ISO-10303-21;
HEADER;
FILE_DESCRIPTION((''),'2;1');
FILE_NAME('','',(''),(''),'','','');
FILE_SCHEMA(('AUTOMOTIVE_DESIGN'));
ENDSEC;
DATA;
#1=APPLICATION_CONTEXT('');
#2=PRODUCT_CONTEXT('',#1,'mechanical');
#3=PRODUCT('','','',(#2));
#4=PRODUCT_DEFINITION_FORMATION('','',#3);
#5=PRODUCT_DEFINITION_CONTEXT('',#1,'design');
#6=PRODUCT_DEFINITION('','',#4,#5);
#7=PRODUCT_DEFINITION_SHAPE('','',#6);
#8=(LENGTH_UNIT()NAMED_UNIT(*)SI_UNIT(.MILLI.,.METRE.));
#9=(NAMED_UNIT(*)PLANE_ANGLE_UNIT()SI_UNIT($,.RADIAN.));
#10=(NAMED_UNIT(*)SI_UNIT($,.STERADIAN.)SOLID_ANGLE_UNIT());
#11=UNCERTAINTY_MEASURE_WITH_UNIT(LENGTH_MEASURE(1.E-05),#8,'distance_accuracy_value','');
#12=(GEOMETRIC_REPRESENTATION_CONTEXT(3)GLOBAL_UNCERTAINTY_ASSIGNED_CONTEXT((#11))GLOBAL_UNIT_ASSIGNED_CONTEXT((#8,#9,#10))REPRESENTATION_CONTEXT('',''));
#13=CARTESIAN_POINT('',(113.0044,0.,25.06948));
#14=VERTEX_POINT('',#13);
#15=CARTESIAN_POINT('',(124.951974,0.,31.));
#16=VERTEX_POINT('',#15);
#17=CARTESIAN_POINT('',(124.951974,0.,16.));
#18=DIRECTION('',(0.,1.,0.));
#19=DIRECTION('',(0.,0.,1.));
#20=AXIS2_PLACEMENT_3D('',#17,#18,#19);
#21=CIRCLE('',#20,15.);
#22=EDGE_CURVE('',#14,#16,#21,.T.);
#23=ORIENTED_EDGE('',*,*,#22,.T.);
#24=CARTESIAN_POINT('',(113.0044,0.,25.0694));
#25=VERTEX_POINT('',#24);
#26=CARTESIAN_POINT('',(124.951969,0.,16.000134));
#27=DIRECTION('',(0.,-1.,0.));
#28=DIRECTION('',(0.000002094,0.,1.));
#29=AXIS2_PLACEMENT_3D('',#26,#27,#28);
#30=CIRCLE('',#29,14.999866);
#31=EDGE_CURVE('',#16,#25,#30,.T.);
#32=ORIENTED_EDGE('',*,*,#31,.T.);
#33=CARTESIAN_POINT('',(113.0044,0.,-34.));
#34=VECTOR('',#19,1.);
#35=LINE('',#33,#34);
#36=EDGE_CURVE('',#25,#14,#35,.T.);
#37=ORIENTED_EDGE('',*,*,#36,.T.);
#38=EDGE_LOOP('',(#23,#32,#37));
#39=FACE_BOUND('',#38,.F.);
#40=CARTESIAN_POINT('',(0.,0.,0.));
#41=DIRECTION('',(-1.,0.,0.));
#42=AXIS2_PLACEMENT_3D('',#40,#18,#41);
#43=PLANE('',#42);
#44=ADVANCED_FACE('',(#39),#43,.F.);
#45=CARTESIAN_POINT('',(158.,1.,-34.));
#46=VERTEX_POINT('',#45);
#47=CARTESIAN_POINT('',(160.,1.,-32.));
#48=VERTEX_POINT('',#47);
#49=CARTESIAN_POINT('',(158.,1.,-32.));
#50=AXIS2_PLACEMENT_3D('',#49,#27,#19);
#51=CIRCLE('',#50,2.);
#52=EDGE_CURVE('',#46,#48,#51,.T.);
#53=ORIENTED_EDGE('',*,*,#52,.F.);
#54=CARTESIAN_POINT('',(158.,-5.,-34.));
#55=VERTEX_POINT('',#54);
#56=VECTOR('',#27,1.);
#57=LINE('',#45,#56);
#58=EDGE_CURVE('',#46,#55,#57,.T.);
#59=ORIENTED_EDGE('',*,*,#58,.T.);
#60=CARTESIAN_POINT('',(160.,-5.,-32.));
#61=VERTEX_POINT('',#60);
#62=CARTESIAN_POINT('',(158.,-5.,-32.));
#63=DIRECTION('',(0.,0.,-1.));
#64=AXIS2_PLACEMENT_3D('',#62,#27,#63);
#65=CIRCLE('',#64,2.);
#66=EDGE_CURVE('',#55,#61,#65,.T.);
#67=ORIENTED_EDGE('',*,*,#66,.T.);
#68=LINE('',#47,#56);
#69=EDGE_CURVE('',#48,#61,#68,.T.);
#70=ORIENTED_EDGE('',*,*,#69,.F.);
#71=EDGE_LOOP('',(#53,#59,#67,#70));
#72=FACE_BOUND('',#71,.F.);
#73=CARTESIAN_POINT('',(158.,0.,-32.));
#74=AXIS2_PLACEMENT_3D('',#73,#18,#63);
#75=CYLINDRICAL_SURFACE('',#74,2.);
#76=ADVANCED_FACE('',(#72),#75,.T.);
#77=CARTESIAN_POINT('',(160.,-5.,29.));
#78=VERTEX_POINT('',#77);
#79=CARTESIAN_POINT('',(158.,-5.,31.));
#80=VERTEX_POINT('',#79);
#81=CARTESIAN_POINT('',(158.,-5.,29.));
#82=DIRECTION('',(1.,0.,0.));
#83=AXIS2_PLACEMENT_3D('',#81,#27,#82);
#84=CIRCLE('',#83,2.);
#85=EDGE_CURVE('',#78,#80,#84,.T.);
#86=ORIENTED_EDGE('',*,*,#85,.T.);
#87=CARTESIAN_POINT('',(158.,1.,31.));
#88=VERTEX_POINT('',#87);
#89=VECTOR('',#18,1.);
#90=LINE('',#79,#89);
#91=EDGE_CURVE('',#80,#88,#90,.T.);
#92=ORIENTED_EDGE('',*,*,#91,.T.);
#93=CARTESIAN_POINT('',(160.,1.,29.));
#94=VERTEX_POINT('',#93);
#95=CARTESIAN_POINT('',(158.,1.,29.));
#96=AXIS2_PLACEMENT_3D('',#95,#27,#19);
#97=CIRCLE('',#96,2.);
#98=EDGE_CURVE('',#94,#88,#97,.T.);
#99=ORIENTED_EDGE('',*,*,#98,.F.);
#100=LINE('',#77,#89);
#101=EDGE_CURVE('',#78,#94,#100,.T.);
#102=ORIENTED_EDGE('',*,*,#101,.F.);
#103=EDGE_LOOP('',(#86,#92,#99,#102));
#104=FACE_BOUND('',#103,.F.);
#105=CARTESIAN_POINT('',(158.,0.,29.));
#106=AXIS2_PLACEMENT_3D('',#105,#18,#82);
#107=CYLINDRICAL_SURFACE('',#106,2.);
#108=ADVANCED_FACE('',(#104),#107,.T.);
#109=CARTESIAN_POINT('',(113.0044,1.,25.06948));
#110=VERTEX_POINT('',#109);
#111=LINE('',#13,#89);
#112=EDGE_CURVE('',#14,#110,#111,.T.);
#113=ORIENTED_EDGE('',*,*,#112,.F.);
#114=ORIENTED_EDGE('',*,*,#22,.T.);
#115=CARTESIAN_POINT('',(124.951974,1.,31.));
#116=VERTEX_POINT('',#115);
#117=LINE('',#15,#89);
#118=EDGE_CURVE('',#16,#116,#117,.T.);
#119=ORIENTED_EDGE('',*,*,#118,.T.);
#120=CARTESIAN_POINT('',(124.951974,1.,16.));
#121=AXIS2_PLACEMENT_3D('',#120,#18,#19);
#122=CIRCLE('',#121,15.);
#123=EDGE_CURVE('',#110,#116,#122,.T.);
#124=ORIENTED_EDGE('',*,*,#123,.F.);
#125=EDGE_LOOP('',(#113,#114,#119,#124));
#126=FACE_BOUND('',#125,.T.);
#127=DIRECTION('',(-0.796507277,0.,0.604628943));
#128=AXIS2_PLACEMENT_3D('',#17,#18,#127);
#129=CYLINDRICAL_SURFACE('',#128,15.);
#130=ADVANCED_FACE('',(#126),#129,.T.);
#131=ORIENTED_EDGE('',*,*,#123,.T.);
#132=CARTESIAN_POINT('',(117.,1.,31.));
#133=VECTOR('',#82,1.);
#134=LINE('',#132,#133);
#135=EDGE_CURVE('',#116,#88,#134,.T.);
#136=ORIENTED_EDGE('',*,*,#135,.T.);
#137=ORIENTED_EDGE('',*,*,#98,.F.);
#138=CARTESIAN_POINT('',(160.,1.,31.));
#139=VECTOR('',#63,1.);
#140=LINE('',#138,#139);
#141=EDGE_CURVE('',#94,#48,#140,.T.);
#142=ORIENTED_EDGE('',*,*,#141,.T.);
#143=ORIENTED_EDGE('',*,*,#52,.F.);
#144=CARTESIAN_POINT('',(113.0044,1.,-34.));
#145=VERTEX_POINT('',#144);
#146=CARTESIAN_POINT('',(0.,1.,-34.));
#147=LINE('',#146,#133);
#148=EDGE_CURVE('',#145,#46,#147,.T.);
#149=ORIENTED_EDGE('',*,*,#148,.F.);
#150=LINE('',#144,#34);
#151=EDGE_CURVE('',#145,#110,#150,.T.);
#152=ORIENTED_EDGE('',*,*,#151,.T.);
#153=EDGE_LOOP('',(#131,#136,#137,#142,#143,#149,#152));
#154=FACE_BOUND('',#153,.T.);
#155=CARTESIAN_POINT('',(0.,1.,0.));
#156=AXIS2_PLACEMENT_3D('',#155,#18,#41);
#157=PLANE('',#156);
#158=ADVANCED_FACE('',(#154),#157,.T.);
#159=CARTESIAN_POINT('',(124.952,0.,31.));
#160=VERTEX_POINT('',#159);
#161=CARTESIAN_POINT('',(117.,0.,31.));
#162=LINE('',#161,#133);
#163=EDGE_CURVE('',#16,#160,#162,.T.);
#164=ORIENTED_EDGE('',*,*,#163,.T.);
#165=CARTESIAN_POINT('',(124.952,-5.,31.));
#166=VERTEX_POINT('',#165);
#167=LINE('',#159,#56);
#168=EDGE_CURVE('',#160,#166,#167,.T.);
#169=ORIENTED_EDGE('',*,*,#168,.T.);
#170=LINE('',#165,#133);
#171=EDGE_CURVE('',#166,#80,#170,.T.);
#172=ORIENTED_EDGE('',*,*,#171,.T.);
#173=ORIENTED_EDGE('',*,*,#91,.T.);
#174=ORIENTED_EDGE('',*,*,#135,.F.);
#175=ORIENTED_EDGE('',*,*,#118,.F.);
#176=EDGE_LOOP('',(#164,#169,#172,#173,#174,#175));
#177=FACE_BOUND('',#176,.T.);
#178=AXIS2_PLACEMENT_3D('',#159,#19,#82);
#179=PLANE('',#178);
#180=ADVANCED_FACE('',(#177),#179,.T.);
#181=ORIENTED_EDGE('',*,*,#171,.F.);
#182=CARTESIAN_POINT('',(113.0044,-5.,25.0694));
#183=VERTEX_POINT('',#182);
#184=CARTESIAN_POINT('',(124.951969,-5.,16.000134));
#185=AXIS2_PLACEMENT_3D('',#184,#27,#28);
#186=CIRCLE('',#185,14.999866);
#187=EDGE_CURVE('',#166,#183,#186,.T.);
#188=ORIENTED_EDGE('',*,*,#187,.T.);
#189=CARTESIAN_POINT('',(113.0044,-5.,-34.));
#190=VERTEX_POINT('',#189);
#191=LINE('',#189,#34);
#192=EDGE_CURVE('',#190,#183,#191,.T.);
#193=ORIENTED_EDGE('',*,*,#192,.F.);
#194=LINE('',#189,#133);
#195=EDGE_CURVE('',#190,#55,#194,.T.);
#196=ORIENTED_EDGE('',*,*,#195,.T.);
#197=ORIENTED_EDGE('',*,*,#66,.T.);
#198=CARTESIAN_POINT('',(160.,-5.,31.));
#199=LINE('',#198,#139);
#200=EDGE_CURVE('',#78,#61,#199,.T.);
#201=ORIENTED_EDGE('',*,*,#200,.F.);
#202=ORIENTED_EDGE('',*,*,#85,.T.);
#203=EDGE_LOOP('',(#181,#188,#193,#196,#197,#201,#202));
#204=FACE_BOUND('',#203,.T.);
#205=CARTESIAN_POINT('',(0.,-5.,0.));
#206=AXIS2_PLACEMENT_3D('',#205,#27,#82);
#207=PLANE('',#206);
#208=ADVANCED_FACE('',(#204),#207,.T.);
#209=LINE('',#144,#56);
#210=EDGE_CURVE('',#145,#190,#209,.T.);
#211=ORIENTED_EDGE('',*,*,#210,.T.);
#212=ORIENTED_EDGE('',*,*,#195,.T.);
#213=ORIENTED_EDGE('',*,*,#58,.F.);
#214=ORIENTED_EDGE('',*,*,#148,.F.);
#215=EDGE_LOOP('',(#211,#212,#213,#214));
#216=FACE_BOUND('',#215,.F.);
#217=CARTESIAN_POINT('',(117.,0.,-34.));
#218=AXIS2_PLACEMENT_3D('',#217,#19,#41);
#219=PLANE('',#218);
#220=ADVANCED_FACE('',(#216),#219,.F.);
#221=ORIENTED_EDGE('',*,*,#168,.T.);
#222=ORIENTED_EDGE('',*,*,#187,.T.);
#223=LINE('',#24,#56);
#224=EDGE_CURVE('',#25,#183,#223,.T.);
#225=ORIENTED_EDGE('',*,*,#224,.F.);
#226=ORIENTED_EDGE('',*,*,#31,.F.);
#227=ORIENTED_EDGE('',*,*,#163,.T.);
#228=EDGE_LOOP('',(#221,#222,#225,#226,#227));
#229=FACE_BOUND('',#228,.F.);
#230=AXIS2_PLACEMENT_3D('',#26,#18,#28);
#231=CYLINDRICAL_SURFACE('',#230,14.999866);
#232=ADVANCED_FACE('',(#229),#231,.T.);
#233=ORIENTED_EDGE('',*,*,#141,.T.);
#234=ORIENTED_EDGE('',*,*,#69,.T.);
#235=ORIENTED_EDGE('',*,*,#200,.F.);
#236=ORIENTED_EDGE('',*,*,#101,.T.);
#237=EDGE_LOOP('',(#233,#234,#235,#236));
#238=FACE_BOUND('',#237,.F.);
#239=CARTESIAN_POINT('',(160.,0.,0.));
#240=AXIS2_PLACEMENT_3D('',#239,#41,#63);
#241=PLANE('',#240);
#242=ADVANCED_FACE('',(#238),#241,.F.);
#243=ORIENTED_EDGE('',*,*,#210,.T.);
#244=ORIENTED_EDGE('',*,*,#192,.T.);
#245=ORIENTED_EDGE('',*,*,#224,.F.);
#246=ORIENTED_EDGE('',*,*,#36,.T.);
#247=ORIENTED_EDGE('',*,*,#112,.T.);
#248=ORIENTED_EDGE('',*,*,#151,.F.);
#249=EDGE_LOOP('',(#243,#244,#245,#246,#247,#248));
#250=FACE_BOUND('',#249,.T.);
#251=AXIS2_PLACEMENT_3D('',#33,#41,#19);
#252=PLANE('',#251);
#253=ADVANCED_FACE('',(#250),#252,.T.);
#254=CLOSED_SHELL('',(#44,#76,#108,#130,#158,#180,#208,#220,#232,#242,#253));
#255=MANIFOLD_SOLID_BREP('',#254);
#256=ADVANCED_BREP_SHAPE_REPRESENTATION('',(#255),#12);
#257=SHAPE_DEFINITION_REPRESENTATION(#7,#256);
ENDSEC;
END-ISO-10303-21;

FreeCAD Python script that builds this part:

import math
import FreeCAD as App
import Part
import Sketcher


def edges_at(feature, points):
    """Names of the edges that pass closest to the given points."""
    edges = feature.Shape.Edges
    near = lambda p: min(range(len(edges)), key=lambda i: edges[i].distToShape(Part.Vertex(*p))[0])
    return sorted({f"Edge{near(p) + 1}" for p in points})

doc = App.newDocument("Part")
body = doc.addObject("PartDesign::Body", "Body")

# Sketch on XZ plane
sketch1 = body.newObject("Sketcher::SketchObject", "Sketch")
sketch1.AttachmentSupport = (doc.getObject("XZ_Plane"), [""])
sketch1.MapMode = "FlatFace"
sketch1.addGeometry(Part.LineSegment(App.Vector(0, -34, 0), App.Vector(0, 0, 0)), False)
sketch1.addGeometry(Part.LineSegment(App.Vector(0, 0, 0), App.Vector(62, 0, 0)), False)
sketch1.addGeometry(Part.ArcOfCircle(Part.Circle(App.Vector(62, 63, 0), App.Vector(0, 0, 1), 63), math.radians(-90), math.radians(-31)), False)
sketch1.addGeometry(Part.LineSegment(App.Vector(117, 31, 0), App.Vector(160, 31, 0)), False)
sketch1.addGeometry(Part.LineSegment(App.Vector(160, 31, 0), App.Vector(160, -34, 0)), False)
sketch1.addGeometry(Part.LineSegment(App.Vector(160, -34, 0), App.Vector(0, -34, 0)), False)
sketch1.addConstraint(Sketcher.Constraint("Coincident", 0, 2, 1, 1))
sketch1.addConstraint(Sketcher.Constraint("Tangent", 1, 2, 2, 1))
sketch1.addConstraint(Sketcher.Constraint("Coincident", 2, 2, 3, 1))
sketch1.addConstraint(Sketcher.Constraint("Coincident", 3, 2, 4, 1))
sketch1.addConstraint(Sketcher.Constraint("Coincident", 4, 2, 5, 1))
sketch1.addConstraint(Sketcher.Constraint("Coincident", 5, 2, 0, 1))
sketch1.addConstraint(Sketcher.Constraint("Vertical", 0))
sketch1.addConstraint(Sketcher.Constraint("Horizontal", 1))
sketch1.addConstraint(Sketcher.Constraint("Horizontal", 3))
sketch1.addConstraint(Sketcher.Constraint("Vertical", 4))
sketch1.addConstraint(Sketcher.Constraint("Horizontal", 5))
sketch1.addConstraint(Sketcher.Constraint("Coincident", 0, 2, -1, 1))
sketch1.addConstraint(Sketcher.Constraint("DistanceX", 3, 1, 3, 2, 43.0))
sketch1.addConstraint(Sketcher.Constraint("DistanceX", 5, 2, 5, 1, 160.0))
sketch1.addConstraint(Sketcher.Constraint("DistanceY", 0, 1, 0, 2, 34.0))
sketch1.addConstraint(Sketcher.Constraint("DistanceY", 4, 2, 4, 1, 65.0))
sketch1.addConstraint(Sketcher.Constraint("DistanceX", 1, 1, 1, 2, 62.5))
pad1 = body.newObject("PartDesign::Pad", "Pad")
pad1.Profile = sketch1
pad1.Length = 1
pad1.Reversed = True
doc.recompute()

fillet = body.newObject("PartDesign::Fillet", "Fillet")
fillet.Base = (pad1, edges_at(pad1, [
    (160, 0.5, 31),
    (160, 0.5, -34),
    (0, 0.5, 0),
    (0, 0.5, -34),
]))
fillet.Radius = 2
doc.recompute()

fillet2 = body.newObject("PartDesign::Fillet", "Fillet001")
fillet2.Base = (fillet, edges_at(fillet, [(117, 0.5, 31)]))
fillet2.Radius = 15

# Sketch on XZ plane
sketch2 = body.newObject("Sketcher::SketchObject", "Sketch001")
sketch2.AttachmentSupport = (doc.getObject("XZ_Plane"), [""])
sketch2.MapMode = "FlatFace"
sketch2.AttachmentOffset = App.Placement(App.Vector(0, 0, -1), App.Rotation())
sketch2.addGeometry(Part.Circle(App.Vector(146, 24, 0), App.Vector(0, 0, 1), 3.5), False)
sketch2.addGeometry(Part.Circle(App.Vector(130, 24, 0), App.Vector(0, 0, 1), 3.5), False)
sketch2.addGeometry(Part.Circle(App.Vector(130, -8, 0), App.Vector(0, 0, 1), 3.5), False)
sketch2.addGeometry(Part.Circle(App.Vector(146, -8, 0), App.Vector(0, 0, 1), 3.5), False)
sketch2.addConstraint(Sketcher.Constraint("Equal", 0, 1))
sketch2.addConstraint(Sketcher.Constraint("Equal", 1, 2))
sketch2.addConstraint(Sketcher.Constraint("Equal", 2, 3))
sketch2.addConstraint(Sketcher.Constraint("Horizontal", 0, 3, 1, 3))
sketch2.addConstraint(Sketcher.Constraint("Horizontal", 2, 3, 3, 3))
sketch2.addConstraint(Sketcher.Constraint("Vertical", 1, 3, 2, 3))
sketch2.addConstraint(Sketcher.Constraint("Vertical", 0, 3, 3, 3))
sketch2.addConstraint(Sketcher.Constraint("Diameter", 0, 7.0))
sketch2.addConstraint(Sketcher.Constraint("DistanceX", 1, 3, 0, 3, 16.0))
sketch2.addConstraint(Sketcher.Constraint("DistanceY", 2, 3, 1, 3, 32.0))
sketch2.addConstraint(Sketcher.Constraint("DistanceX", -1, 1, 0, 3, 146.0))
sketch2.addConstraint(Sketcher.Constraint("DistanceY", -1, 1, 0, 3, 24.0))
pad2 = body.newObject("PartDesign::Pad", "Pad001")
pad2.Profile = sketch2
pad2.Length = 1
pad2.Reversed = True

# Sketch on XZ plane
sketch3 = body.newObject("Sketcher::SketchObject", "Sketch002")
sketch3.AttachmentSupport = (doc.getObject("XZ_Plane"), [""])
sketch3.MapMode = "FlatFace"
sketch3.AttachmentOffset = App.Placement(App.Vector(0, 0, -2), App.Rotation())
sketch3.addGeometry(Part.Circle(App.Vector(130, -8, 0), App.Vector(0, 0, 1), 2.2), False)
sketch3.addGeometry(Part.Circle(App.Vector(146, -8, 0), App.Vector(0, 0, 1), 2.2), False)
sketch3.addGeometry(Part.Circle(App.Vector(130, 24, 0), App.Vector(0, 0, 1), 2.2), False)
sketch3.addGeometry(Part.Circle(App.Vector(146, 24, 0), App.Vector(0, 0, 1), 2.2), False)
sketch3.addConstraint(Sketcher.Constraint("Equal", 0, 1))
sketch3.addConstraint(Sketcher.Constraint("Equal", 1, 2))
sketch3.addConstraint(Sketcher.Constraint("Equal", 2, 3))
sketch3.addConstraint(Sketcher.Constraint("Horizontal", 0, 3, 1, 3))
sketch3.addConstraint(Sketcher.Constraint("Horizontal", 2, 3, 3, 3))
sketch3.addConstraint(Sketcher.Constraint("Vertical", 0, 3, 2, 3))
sketch3.addConstraint(Sketcher.Constraint("Vertical", 1, 3, 3, 3))
sketch3.addConstraint(Sketcher.Constraint("Diameter", 0, 4.5))
sketch3.addConstraint(Sketcher.Constraint("DistanceX", -1, 1, 0, 3, 130.0))
sketch3.addConstraint(Sketcher.Constraint("DistanceY", 0, 3, -1, 1, 8.0))
sketch3.addConstraint(Sketcher.Constraint("DistanceX", -1, 1, 1, 3, 146.0))
sketch3.addConstraint(Sketcher.Constraint("DistanceY", -1, 1, 2, 3, 24.0))
pad3 = body.newObject("PartDesign::Pad", "Pad002")
pad3.Profile = sketch3
pad3.Length = 2.5
pad3.Reversed = True

# Sketch on XZ plane
sketch4 = body.newObject("Sketcher::SketchObject", "Sketch003")
sketch4.AttachmentSupport = (doc.getObject("XZ_Plane"), [""])
sketch4.MapMode = "FlatFace"
sketch4.AttachmentOffset = App.Placement(App.Vector(0, 0, -4.5), App.Rotation())
sketch4.addGeometry(Part.LineSegment(App.Vector(129.3, -6.8, 0), App.Vector(130.7, -6.8, 0)), False)
sketch4.addGeometry(Part.LineSegment(App.Vector(130.7, -6.8, 0), App.Vector(131.4, -8, 0)), False)
sketch4.addGeometry(Part.LineSegment(App.Vector(131.4, -8, 0), App.Vector(130.7, -9.2, 0)), False)
sketch4.addGeometry(Part.LineSegment(App.Vector(130.7, -9.2, 0), App.Vector(129.3, -9.2, 0)), False)
sketch4.addGeometry(Part.LineSegment(App.Vector(129.3, -9.2, 0), App.Vector(128.6, -8, 0)), False)
sketch4.addGeometry(Part.LineSegment(App.Vector(128.6, -8, 0), App.Vector(129.3, -6.8, 0)), False)
sketch4.addGeometry(Part.LineSegment(App.Vector(145.3, -6.8, 0), App.Vector(146.7, -6.8, 0)), False)
sketch4.addGeometry(Part.LineSegment(App.Vector(146.7, -6.8, 0), App.Vector(147.4, -8, 0)), False)
sketch4.addGeometry(Part.LineSegment(App.Vector(147.4, -8, 0), App.Vector(146.7, -9.2, 0)), False)
sketch4.addGeometry(Part.LineSegment(App.Vector(146.7, -9.2, 0), App.Vector(145.3, -9.2, 0)), False)
sketch4.addGeometry(Part.LineSegment(App.Vector(145.3, -9.2, 0), App.Vector(144.6, -8, 0)), False)
sketch4.addGeometry(Part.LineSegment(App.Vector(144.6, -8, 0), App.Vector(145.3, -6.8, 0)), False)
sketch4.addGeometry(Part.LineSegment(App.Vector(130.7, 22.8, 0), App.Vector(129.3, 22.8, 0)), False)
sketch4.addGeometry(Part.LineSegment(App.Vector(129.3, 22.8, 0), App.Vector(128.6, 24, 0)), False)
sketch4.addGeometry(Part.LineSegment(App.Vector(128.6, 24, 0), App.Vector(129.3, 25.2, 0)), False)
sketch4.addGeometry(Part.LineSegment(App.Vector(129.3, 25.2, 0), App.Vector(130.7, 25.2, 0)), False)
sketch4.addGeometry(Part.LineSegment(App.Vector(130.7, 25.2, 0), App.Vector(131.4, 24, 0)), False)
sketch4.addGeometry(Part.LineSegment(App.Vector(131.4, 24, 0), App.Vector(130.7, 22.8, 0)), False)
sketch4.addGeometry(Part.LineSegment(App.Vector(147.4, 24, 0), App.Vector(146.7, 22.8, 0)), False)
sketch4.addGeometry(Part.LineSegment(App.Vector(146.7, 22.8, 0), App.Vector(145.3, 22.8, 0)), False)
sketch4.addGeometry(Part.LineSegment(App.Vector(145.3, 22.8, 0), App.Vector(144.6, 24, 0)), False)
sketch4.addGeometry(Part.LineSegment(App.Vector(144.6, 24, 0), App.Vector(145.3, 25.2, 0)), False)
sketch4.addGeometry(Part.LineSegment(App.Vector(145.3, 25.2, 0), App.Vector(146.7, 25.2, 0)), False)
sketch4.addGeometry(Part.LineSegment(App.Vector(146.7, 25.2, 0), App.Vector(147.4, 24, 0)), False)
sketch4.addConstraint(Sketcher.Constraint("Coincident", 0, 2, 1, 1))
sketch4.addConstraint(Sketcher.Constraint("Coincident", 1, 2, 2, 1))
sketch4.addConstraint(Sketcher.Constraint("Coincident", 2, 2, 3, 1))
sketch4.addConstraint(Sketcher.Constraint("Coincident", 3, 2, 4, 1))
sketch4.addConstraint(Sketcher.Constraint("Coincident", 4, 2, 5, 1))
sketch4.addConstraint(Sketcher.Constraint("Coincident", 5, 2, 0, 1))
sketch4.addConstraint(Sketcher.Constraint("Coincident", 6, 2, 7, 1))
sketch4.addConstraint(Sketcher.Constraint("Coincident", 7, 2, 8, 1))
sketch4.addConstraint(Sketcher.Constraint("Coincident", 8, 2, 9, 1))
sketch4.addConstraint(Sketcher.Constraint("Coincident", 9, 2, 10, 1))
sketch4.addConstraint(Sketcher.Constraint("Coincident", 10, 2, 11, 1))
sketch4.addConstraint(Sketcher.Constraint("Coincident", 11, 2, 6, 1))
sketch4.addConstraint(Sketcher.Constraint("Coincident", 12, 2, 13, 1))
sketch4.addConstraint(Sketcher.Constraint("Coincident", 13, 2, 14, 1))
sketch4.addConstraint(Sketcher.Constraint("Coincident", 14, 2, 15, 1))
sketch4.addConstraint(Sketcher.Constraint("Coincident", 15, 2, 16, 1))
sketch4.addConstraint(Sketcher.Constraint("Coincident", 16, 2, 17, 1))
sketch4.addConstraint(Sketcher.Constraint("Coincident", 17, 2, 12, 1))
sketch4.addConstraint(Sketcher.Constraint("Coincident", 18, 2, 19, 1))
sketch4.addConstraint(Sketcher.Constraint("Coincident", 19, 2, 20, 1))
sketch4.addConstraint(Sketcher.Constraint("Coincident", 20, 2, 21, 1))
sketch4.addConstraint(Sketcher.Constraint("Coincident", 21, 2, 22, 1))
sketch4.addConstraint(Sketcher.Constraint("Coincident", 22, 2, 23, 1))
sketch4.addConstraint(Sketcher.Constraint("Coincident", 23, 2, 18, 1))
sketch4.addConstraint(Sketcher.Constraint("Parallel", 0, 3))
sketch4.addConstraint(Sketcher.Constraint("Parallel", 1, 4))
sketch4.addConstraint(Sketcher.Constraint("Parallel", 2, 5))
sketch4.addConstraint(Sketcher.Constraint("Parallel", 6, 9))
sketch4.addConstraint(Sketcher.Constraint("Parallel", 7, 10))
sketch4.addConstraint(Sketcher.Constraint("Parallel", 8, 11))
sketch4.addConstraint(Sketcher.Constraint("Parallel", 9, 12))
sketch4.addConstraint(Sketcher.Constraint("Parallel", 10, 13))
sketch4.addConstraint(Sketcher.Constraint("Parallel", 11, 14))
sketch4.addConstraint(Sketcher.Constraint("Parallel", 12, 15))
sketch4.addConstraint(Sketcher.Constraint("Parallel", 13, 16))
sketch4.addConstraint(Sketcher.Constraint("Parallel", 14, 17))
sketch4.addConstraint(Sketcher.Constraint("Parallel", 5, 18))
sketch4.addConstraint(Sketcher.Constraint("Parallel", 3, 19))
sketch4.addConstraint(Sketcher.Constraint("Parallel", 4, 20))
sketch4.addConstraint(Sketcher.Constraint("Parallel", 18, 21))
sketch4.addConstraint(Sketcher.Constraint("Parallel", 19, 22))
sketch4.addConstraint(Sketcher.Constraint("Parallel", 20, 23))
sketch4.addConstraint(Sketcher.Constraint("Horizontal", 5, 2, 6, 2))
sketch4.addConstraint(Sketcher.Constraint("Horizontal", 4, 2, 7, 2))
sketch4.addConstraint(Sketcher.Constraint("Horizontal", 3, 2, 8, 2))
sketch4.addConstraint(Sketcher.Constraint("Horizontal", 2, 2, 9, 2))
sketch4.addConstraint(Sketcher.Constraint("Horizontal", 1, 2, 10, 2))
sketch4.addConstraint(Sketcher.Constraint("Horizontal", 12, 2, 18, 2))
sketch4.addConstraint(Sketcher.Constraint("Horizontal", 16, 2, 20, 2))
sketch4.addConstraint(Sketcher.Constraint("Horizontal", 15, 2, 21, 2))
sketch4.addConstraint(Sketcher.Constraint("Horizontal", 13, 2, 23, 2))
sketch4.addConstraint(Sketcher.Constraint("Vertical", 5, 2, 12, 2))
sketch4.addConstraint(Sketcher.Constraint("Vertical", 4, 2, 13, 2))
sketch4.addConstraint(Sketcher.Constraint("Vertical", 3, 2, 14, 2))
sketch4.addConstraint(Sketcher.Constraint("Vertical", 2, 2, 15, 2))
sketch4.addConstraint(Sketcher.Constraint("Vertical", 1, 2, 16, 2))
sketch4.addConstraint(Sketcher.Constraint("Vertical", 6, 2, 18, 2))
sketch4.addConstraint(Sketcher.Constraint("Vertical", 11, 2, 19, 2))
sketch4.addConstraint(Sketcher.Constraint("Vertical", 10, 2, 20, 2))
sketch4.addConstraint(Sketcher.Constraint("Vertical", 9, 2, 21, 2))
sketch4.addConstraint(Sketcher.Constraint("Equal", 0, 1))
sketch4.addConstraint(Sketcher.Constraint("Equal", 1, 2))
sketch4.addConstraint(Sketcher.Constraint("Equal", 2, 3))
sketch4.addConstraint(Sketcher.Constraint("Equal", 5, 6))
sketch4.addConstraint(Sketcher.Constraint("DistanceX", 2, 2, 6, 2, 16.0))
sketch4.addConstraint(Sketcher.Constraint("DistanceY", 1, 2, 13, 2, 32.0))
sketch4.addConstraint(Sketcher.Constraint("DistanceX", 2, 2, 0, 2, 0.004))
sketch4.addConstraint(Sketcher.Constraint("DistanceX", 3, 2, 1, 2, 2.128))
sketch4.addConstraint(Sketcher.Constraint("DistanceY", 3, 2, 1, 2, 1.224))
sketch4.addConstraint(Sketcher.Constraint("DistanceY", 2, 2, 4, 2, 1.231))
sketch4.addConstraint(Sketcher.Constraint("DistanceX", -1, 1, 0, 2, 130.7107))
sketch4.addConstraint(Sketcher.Constraint("DistanceY", 0, 2, -1, 1, 6.7738))
pocket1 = body.newObject("PartDesign::Pocket", "Pocket")
pocket1.Profile = sketch4
pocket1.Length = 1.5
pocket1.Reversed = True

# Sketch on XZ plane
sketch5 = body.newObject("Sketcher::SketchObject", "Sketch004")
sketch5.AttachmentSupport = (doc.getObject("XZ_Plane"), [""])
sketch5.MapMode = "FlatFace"
sketch5.AttachmentOffset = App.Placement(App.Vector(0, 0, -1), App.Rotation())
sketch5.addGeometry(Part.Circle(App.Vector(6, -7.5, 0), App.Vector(0, 0, 1), 2.2), False)
sketch5.addGeometry(Part.Circle(App.Vector(6, -26.5, 0), App.Vector(0, 0, 1), 2.2), False)
sketch5.addConstraint(Sketcher.Constraint("Equal", 0, 1))
sketch5.addConstraint(Sketcher.Constraint("Vertical", 0, 3, 1, 3))
sketch5.addConstraint(Sketcher.Constraint("Diameter", 0, 4.5))
sketch5.addConstraint(Sketcher.Constraint("DistanceX", -1, 1, 0, 3, 6.0))
sketch5.addConstraint(Sketcher.Constraint("DistanceY", 0, 3, -1, 1, 7.5))
sketch5.addConstraint(Sketcher.Constraint("DistanceY", 1, 3, 0, 3, 19.0))
pocket2 = body.newObject("PartDesign::Pocket", "Pocket001")
pocket2.Profile = sketch5
pocket2.Length = 0.1
pocket2.Reversed = True

# Sketch on XZ plane
sketch6 = body.newObject("Sketcher::SketchObject", "Sketch005")
sketch6.AttachmentSupport = (doc.getObject("XZ_Plane"), [""])
sketch6.MapMode = "FlatFace"
sketch6.AttachmentOffset = App.Placement(App.Vector(0, 0, -0.9), App.Rotation())
sketch6.addGeometry(Part.LineSegment(App.Vector(6.2, -7.8, 0), App.Vector(6.2, -9, 0)), False)
sketch6.addGeometry(Part.LineSegment(App.Vector(6.2, -9, 0), App.Vector(5.8, -9, 0)), False)
sketch6.addGeometry(Part.LineSegment(App.Vector(5.8, -9, 0), App.Vector(5.8, -7.8, 0)), False)
sketch6.addGeometry(Part.LineSegment(App.Vector(5.8, -7.8, 0), App.Vector(4.5, -7.8, 0)), False)
sketch6.addGeometry(Part.LineSegment(App.Vector(4.5, -7.8, 0), App.Vector(4.5, -7.2, 0)), False)
sketch6.addGeometry(Part.LineSegment(App.Vector(4.5, -7.2, 0), App.Vector(5.8, -7.2, 0)), False)
sketch6.addGeometry(Part.LineSegment(App.Vector(5.8, -7.2, 0), App.Vector(5.8, -6, 0)), False)
sketch6.addGeometry(Part.LineSegment(App.Vector(5.8, -6, 0), App.Vector(6.2, -6, 0)), False)
sketch6.addGeometry(Part.LineSegment(App.Vector(6.2, -6, 0), App.Vector(6.2, -7.2, 0)), False)
sketch6.addGeometry(Part.LineSegment(App.Vector(6.2, -7.2, 0), App.Vector(7.5, -7.2, 0)), False)
sketch6.addGeometry(Part.LineSegment(App.Vector(7.5, -7.2, 0), App.Vector(7.5, -7.8, 0)), False)
sketch6.addGeometry(Part.LineSegment(App.Vector(7.5, -7.8, 0), App.Vector(6.2, -7.8, 0)), False)
sketch6.addGeometry(Part.LineSegment(App.Vector(6.2, -28, 0), App.Vector(5.8, -28, 0)), False)
sketch6.addGeometry(Part.LineSegment(App.Vector(5.8, -28, 0), App.Vector(5.8, -26.8, 0)), False)
sketch6.addGeometry(Part.LineSegment(App.Vector(5.8, -26.8, 0), App.Vector(4.5, -26.8, 0)), False)
sketch6.addGeometry(Part.LineSegment(App.Vector(4.5, -26.8, 0), App.Vector(4.5, -26.2, 0)), False)
sketch6.addGeometry(Part.LineSegment(App.Vector(4.5, -26.2, 0), App.Vector(5.8, -26.2, 0)), False)
sketch6.addGeometry(Part.LineSegment(App.Vector(5.8, -26.2, 0), App.Vector(5.8, -25, 0)), False)
sketch6.addGeometry(Part.LineSegment(App.Vector(5.8, -25, 0), App.Vector(6.2, -25, 0)), False)
sketch6.addGeometry(Part.LineSegment(App.Vector(6.2, -25, 0), App.Vector(6.2, -26.2, 0)), False)
sketch6.addGeometry(Part.LineSegment(App.Vector(6.2, -26.2, 0), App.Vector(7.5, -26.2, 0)), False)
sketch6.addGeometry(Part.LineSegment(App.Vector(7.5, -26.2, 0), App.Vector(7.5, -26.8, 0)), False)
sketch6.addGeometry(Part.LineSegment(App.Vector(7.5, -26.8, 0), App.Vector(6.2, -26.8, 0)), False)
sketch6.addGeometry(Part.LineSegment(App.Vector(6.2, -26.8, 0), App.Vector(6.2, -28, 0)), False)
sketch6.addConstraint(Sketcher.Constraint("Coincident", 0, 2, 1, 1))
sketch6.addConstraint(Sketcher.Constraint("Coincident", 1, 2, 2, 1))
sketch6.addConstraint(Sketcher.Constraint("Coincident", 2, 2, 3, 1))
sketch6.addConstraint(Sketcher.Constraint("Coincident", 3, 2, 4, 1))
sketch6.addConstraint(Sketcher.Constraint("Coincident", 4, 2, 5, 1))
sketch6.addConstraint(Sketcher.Constraint("Coincident", 5, 2, 6, 1))
sketch6.addConstraint(Sketcher.Constraint("Coincident", 6, 2, 7, 1))
sketch6.addConstraint(Sketcher.Constraint("Coincident", 7, 2, 8, 1))
sketch6.addConstraint(Sketcher.Constraint("Coincident", 8, 2, 9, 1))
sketch6.addConstraint(Sketcher.Constraint("Coincident", 9, 2, 10, 1))
sketch6.addConstraint(Sketcher.Constraint("Coincident", 10, 2, 11, 1))
sketch6.addConstraint(Sketcher.Constraint("Coincident", 11, 2, 0, 1))
sketch6.addConstraint(Sketcher.Constraint("Coincident", 12, 2, 13, 1))
sketch6.addConstraint(Sketcher.Constraint("Coincident", 13, 2, 14, 1))
sketch6.addConstraint(Sketcher.Constraint("Coincident", 14, 2, 15, 1))
sketch6.addConstraint(Sketcher.Constraint("Coincident", 15, 2, 16, 1))
sketch6.addConstraint(Sketcher.Constraint("Coincident", 16, 2, 17, 1))
sketch6.addConstraint(Sketcher.Constraint("Coincident", 17, 2, 18, 1))
sketch6.addConstraint(Sketcher.Constraint("Coincident", 18, 2, 19, 1))
sketch6.addConstraint(Sketcher.Constraint("Coincident", 19, 2, 20, 1))
sketch6.addConstraint(Sketcher.Constraint("Coincident", 20, 2, 21, 1))
sketch6.addConstraint(Sketcher.Constraint("Coincident", 21, 2, 22, 1))
sketch6.addConstraint(Sketcher.Constraint("Coincident", 22, 2, 23, 1))
sketch6.addConstraint(Sketcher.Constraint("Coincident", 23, 2, 12, 1))
sketch6.addConstraint(Sketcher.Constraint("Vertical", 0))
sketch6.addConstraint(Sketcher.Constraint("Horizontal", 1))
sketch6.addConstraint(Sketcher.Constraint("Vertical", 2))
sketch6.addConstraint(Sketcher.Constraint("Horizontal", 3))
sketch6.addConstraint(Sketcher.Constraint("Vertical", 4))
sketch6.addConstraint(Sketcher.Constraint("Horizontal", 5))
sketch6.addConstraint(Sketcher.Constraint("Vertical", 6))
sketch6.addConstraint(Sketcher.Constraint("Horizontal", 7))
sketch6.addConstraint(Sketcher.Constraint("Vertical", 8))
sketch6.addConstraint(Sketcher.Constraint("Horizontal", 9))
sketch6.addConstraint(Sketcher.Constraint("Vertical", 10))
sketch6.addConstraint(Sketcher.Constraint("Horizontal", 11))
sketch6.addConstraint(Sketcher.Constraint("Horizontal", 12))
sketch6.addConstraint(Sketcher.Constraint("Vertical", 13))
sketch6.addConstraint(Sketcher.Constraint("Horizontal", 14))
sketch6.addConstraint(Sketcher.Constraint("Vertical", 15))
sketch6.addConstraint(Sketcher.Constraint("Horizontal", 16))
sketch6.addConstraint(Sketcher.Constraint("Vertical", 17))
sketch6.addConstraint(Sketcher.Constraint("Horizontal", 18))
sketch6.addConstraint(Sketcher.Constraint("Vertical", 19))
sketch6.addConstraint(Sketcher.Constraint("Horizontal", 20))
sketch6.addConstraint(Sketcher.Constraint("Vertical", 21))
sketch6.addConstraint(Sketcher.Constraint("Horizontal", 22))
sketch6.addConstraint(Sketcher.Constraint("Vertical", 23))
sketch6.addConstraint(Sketcher.Constraint("Horizontal", 5, 2, 8, 2))
sketch6.addConstraint(Sketcher.Constraint("Horizontal", 3, 2, 10, 2))
sketch6.addConstraint(Sketcher.Constraint("Horizontal", 16, 2, 19, 2))
sketch6.addConstraint(Sketcher.Constraint("Horizontal", 14, 2, 21, 2))
sketch6.addConstraint(Sketcher.Constraint("Vertical", 2, 2, 5, 2))
sketch6.addConstraint(Sketcher.Constraint("Vertical", 0, 2, 7, 2))
sketch6.addConstraint(Sketcher.Constraint("Vertical", 6, 2, 12, 2))
sketch6.addConstraint(Sketcher.Constraint("Vertical", 4, 2, 14, 2))
sketch6.addConstraint(Sketcher.Constraint("Vertical", 13, 2, 16, 2))
sketch6.addConstraint(Sketcher.Constraint("Vertical", 11, 2, 18, 2))
sketch6.addConstraint(Sketcher.Constraint("Vertical", 10, 2, 20, 2))
sketch6.addConstraint(Sketcher.Constraint("Vertical", 19, 2, 22, 2))
sketch6.addConstraint(Sketcher.Constraint("Equal", 5, 9))
sketch6.addConstraint(Sketcher.Constraint("Equal", 22, 0))
sketch6.addConstraint(Sketcher.Constraint("Equal", 18, 4))
sketch6.addConstraint(Sketcher.Constraint("Equal", 2, 6))
sketch6.addConstraint(Sketcher.Constraint("Equal", 8, 13))
sketch6.addConstraint(Sketcher.Constraint("Equal", 10, 15))
sketch6.addConstraint(Sketcher.Constraint("Equal", 13, 17))
sketch6.addConstraint(Sketcher.Constraint("DistanceX", 1, 2, 1, 1, 0.5))
sketch6.addConstraint(Sketcher.Constraint("DistanceY", 1, 2, 6, 2, 3.0))
sketch6.addConstraint(Sketcher.Constraint("DistanceY", 0, 2, -1, 1, 9.0))
sketch6.addConstraint(Sketcher.Constraint("DistanceY", 12, 2, -1, 1, 28.0))
sketch6.addConstraint(Sketcher.Constraint("DistanceX", -1, 1, 3, 2, 4.5))
pocket3 = body.newObject("PartDesign::Pocket", "Pocket002")
pocket3.Profile = sketch6
pocket3.Length = 0.1
pocket3.Reversed = True

# Sketch on XZ plane
sketch7 = body.newObject("Sketcher::SketchObject", "Sketch006")
sketch7.AttachmentSupport = (doc.getObject("XZ_Plane"), [""])
sketch7.MapMode = "FlatFace"
sketch7.AttachmentOffset = App.Placement(App.Vector(0, 0, -0.9), App.Rotation())
sketch7.addGeometry(Part.Circle(App.Vector(58, -26.5, 0), App.Vector(0, 0, 1), 2.2), False)
sketch7.addGeometry(Part.Circle(App.Vector(58, -7.5, 0), App.Vector(0, 0, 1), 2.2), False)
sketch7.addConstraint(Sketcher.Constraint("Equal", 0, 1))
sketch7.addConstraint(Sketcher.Constraint("Vertical", 0, 3, 1, 3))
sketch7.addConstraint(Sketcher.Constraint("Diameter", 0, 4.5))
sketch7.addConstraint(Sketcher.Constraint("DistanceX", -1, 1, 0, 3, 58.0))
sketch7.addConstraint(Sketcher.Constraint("DistanceY", 0, 3, 1, 3, 19.0))
sketch7.addConstraint(Sketcher.Constraint("DistanceY", 0, 3, -1, 1, 26.5))
pocket4 = body.newObject("PartDesign::Pocket", "Pocket003")
pocket4.Profile = sketch7
pocket4.Length = 2

# Sketch on XZ plane
sketch8 = body.newObject("Sketcher::SketchObject", "Sketch007")
sketch8.AttachmentSupport = (doc.getObject("XZ_Plane"), [""])
sketch8.MapMode = "FlatFace"
sketch8.AttachmentOffset = App.Placement(App.Vector(0, 0, -0.9), App.Rotation())
sketch8.addGeometry(Part.LineSegment(App.Vector(58.2, -28, 0), App.Vector(57.8, -28, 0)), False)
sketch8.addGeometry(Part.LineSegment(App.Vector(57.8, -28, 0), App.Vector(57.8, -26.8, 0)), False)
sketch8.addGeometry(Part.LineSegment(App.Vector(57.8, -26.8, 0), App.Vector(56.5, -26.8, 0)), False)
sketch8.addGeometry(Part.LineSegment(App.Vector(56.5, -26.8, 0), App.Vector(56.5, -26.2, 0)), False)
sketch8.addGeometry(Part.LineSegment(App.Vector(56.5, -26.2, 0), App.Vector(57.8, -26.2, 0)), False)
sketch8.addGeometry(Part.LineSegment(App.Vector(57.8, -26.2, 0), App.Vector(57.8, -25, 0)), False)
sketch8.addGeometry(Part.LineSegment(App.Vector(57.8, -25, 0), App.Vector(58.2, -25, 0)), False)
sketch8.addGeometry(Part.LineSegment(App.Vector(58.2, -25, 0), App.Vector(58.2, -26.2, 0)), False)
sketch8.addGeometry(Part.LineSegment(App.Vector(58.2, -26.2, 0), App.Vector(59.5, -26.2, 0)), False)
sketch8.addGeometry(Part.LineSegment(App.Vector(59.5, -26.2, 0), App.Vector(59.5, -26.8, 0)), False)
sketch8.addGeometry(Part.LineSegment(App.Vector(59.5, -26.8, 0), App.Vector(58.2, -26.8, 0)), False)
sketch8.addGeometry(Part.LineSegment(App.Vector(58.2, -26.8, 0), App.Vector(58.2, -28, 0)), False)
sketch8.addGeometry(Part.LineSegment(App.Vector(57.8, -6, 0), App.Vector(58.2, -6, 0)), False)
sketch8.addGeometry(Part.LineSegment(App.Vector(58.2, -6, 0), App.Vector(58.2, -7.2, 0)), False)
sketch8.addGeometry(Part.LineSegment(App.Vector(58.2, -7.2, 0), App.Vector(59.5, -7.2, 0)), False)
sketch8.addGeometry(Part.LineSegment(App.Vector(59.5, -7.2, 0), App.Vector(59.5, -7.8, 0)), False)
sketch8.addGeometry(Part.LineSegment(App.Vector(59.5, -7.8, 0), App.Vector(58.2, -7.8, 0)), False)
sketch8.addGeometry(Part.LineSegment(App.Vector(58.2, -7.8, 0), App.Vector(58.2, -9, 0)), False)
sketch8.addGeometry(Part.LineSegment(App.Vector(58.2, -9, 0), App.Vector(57.8, -9, 0)), False)
sketch8.addGeometry(Part.LineSegment(App.Vector(57.8, -9, 0), App.Vector(57.8, -7.8, 0)), False)
sketch8.addGeometry(Part.LineSegment(App.Vector(57.8, -7.8, 0), App.Vector(56.5, -7.8, 0)), False)
sketch8.addGeometry(Part.LineSegment(App.Vector(56.5, -7.8, 0), App.Vector(56.5, -7.2, 0)), False)
sketch8.addGeometry(Part.LineSegment(App.Vector(56.5, -7.2, 0), App.Vector(57.8, -7.2, 0)), False)
sketch8.addGeometry(Part.LineSegment(App.Vector(57.8, -7.2, 0), App.Vector(57.8, -6, 0)), False)
sketch8.addConstraint(Sketcher.Constraint("Coincident", 0, 2, 1, 1))
sketch8.addConstraint(Sketcher.Constraint("Coincident", 1, 2, 2, 1))
sketch8.addConstraint(Sketcher.Constraint("Coincident", 2, 2, 3, 1))
sketch8.addConstraint(Sketcher.Constraint("Coincident", 3, 2, 4, 1))
sketch8.addConstraint(Sketcher.Constraint("Coincident", 4, 2, 5, 1))
sketch8.addConstraint(Sketcher.Constraint("Coincident", 5, 2, 6, 1))
sketch8.addConstraint(Sketcher.Constraint("Coincident", 6, 2, 7, 1))
sketch8.addConstraint(Sketcher.Constraint("Coincident", 7, 2, 8, 1))
sketch8.addConstraint(Sketcher.Constraint("Coincident", 8, 2, 9, 1))
sketch8.addConstraint(Sketcher.Constraint("Coincident", 9, 2, 10, 1))
sketch8.addConstraint(Sketcher.Constraint("Coincident", 10, 2, 11, 1))
sketch8.addConstraint(Sketcher.Constraint("Coincident", 11, 2, 0, 1))
sketch8.addConstraint(Sketcher.Constraint("Coincident", 12, 2, 13, 1))
sketch8.addConstraint(Sketcher.Constraint("Coincident", 13, 2, 14, 1))
sketch8.addConstraint(Sketcher.Constraint("Coincident", 14, 2, 15, 1))
sketch8.addConstraint(Sketcher.Constraint("Coincident", 15, 2, 16, 1))
sketch8.addConstraint(Sketcher.Constraint("Coincident", 16, 2, 17, 1))
sketch8.addConstraint(Sketcher.Constraint("Coincident", 17, 2, 18, 1))
sketch8.addConstraint(Sketcher.Constraint("Coincident", 18, 2, 19, 1))
sketch8.addConstraint(Sketcher.Constraint("Coincident", 19, 2, 20, 1))
sketch8.addConstraint(Sketcher.Constraint("Coincident", 20, 2, 21, 1))
sketch8.addConstraint(Sketcher.Constraint("Coincident", 21, 2, 22, 1))
sketch8.addConstraint(Sketcher.Constraint("Coincident", 22, 2, 23, 1))
sketch8.addConstraint(Sketcher.Constraint("Coincident", 23, 2, 12, 1))
sketch8.addConstraint(Sketcher.Constraint("Horizontal", 0))
sketch8.addConstraint(Sketcher.Constraint("Vertical", 1))
sketch8.addConstraint(Sketcher.Constraint("Horizontal", 2))
sketch8.addConstraint(Sketcher.Constraint("Vertical", 3))
sketch8.addConstraint(Sketcher.Constraint("Horizontal", 4))
sketch8.addConstraint(Sketcher.Constraint("Vertical", 5))
sketch8.addConstraint(Sketcher.Constraint("Horizontal", 6))
sketch8.addConstraint(Sketcher.Constraint("Vertical", 7))
sketch8.addConstraint(Sketcher.Constraint("Horizontal", 8))
sketch8.addConstraint(Sketcher.Constraint("Vertical", 9))
sketch8.addConstraint(Sketcher.Constraint("Horizontal", 10))
sketch8.addConstraint(Sketcher.Constraint("Vertical", 11))
sketch8.addConstraint(Sketcher.Constraint("Horizontal", 12))
sketch8.addConstraint(Sketcher.Constraint("Vertical", 13))
sketch8.addConstraint(Sketcher.Constraint("Horizontal", 14))
sketch8.addConstraint(Sketcher.Constraint("Vertical", 15))
sketch8.addConstraint(Sketcher.Constraint("Horizontal", 16))
sketch8.addConstraint(Sketcher.Constraint("Vertical", 17))
sketch8.addConstraint(Sketcher.Constraint("Horizontal", 18))
sketch8.addConstraint(Sketcher.Constraint("Vertical", 19))
sketch8.addConstraint(Sketcher.Constraint("Horizontal", 20))
sketch8.addConstraint(Sketcher.Constraint("Vertical", 21))
sketch8.addConstraint(Sketcher.Constraint("Horizontal", 22))
sketch8.addConstraint(Sketcher.Constraint("Vertical", 23))
sketch8.addConstraint(Sketcher.Constraint("Horizontal", 4, 2, 7, 2))
sketch8.addConstraint(Sketcher.Constraint("Horizontal", 2, 2, 9, 2))
sketch8.addConstraint(Sketcher.Constraint("Horizontal", 16, 2, 19, 2))
sketch8.addConstraint(Sketcher.Constraint("Horizontal", 14, 2, 21, 2))
sketch8.addConstraint(Sketcher.Constraint("Vertical", 1, 2, 4, 2))
sketch8.addConstraint(Sketcher.Constraint("Vertical", 7, 2, 10, 2))
sketch8.addConstraint(Sketcher.Constraint("Vertical", 11, 2, 12, 2))
sketch8.addConstraint(Sketcher.Constraint("Vertical", 9, 2, 14, 2))
sketch8.addConstraint(Sketcher.Constraint("Vertical", 13, 2, 16, 2))
sketch8.addConstraint(Sketcher.Constraint("Vertical", 5, 2, 18, 2))
sketch8.addConstraint(Sketcher.Constraint("Vertical", 3, 2, 20, 2))
sketch8.addConstraint(Sketcher.Constraint("Vertical", 19, 2, 22, 2))
sketch8.addConstraint(Sketcher.Constraint("Equal", 4, 8))
sketch8.addConstraint(Sketcher.Constraint("Equal", 22, 1))
sketch8.addConstraint(Sketcher.Constraint("Equal", 18, 3))
sketch8.addConstraint(Sketcher.Constraint("Equal", 1, 5))
sketch8.addConstraint(Sketcher.Constraint("Equal", 11, 13))
sketch8.addConstraint(Sketcher.Constraint("Equal", 9, 15))
sketch8.addConstraint(Sketcher.Constraint("Equal", 13, 17))
sketch8.addConstraint(Sketcher.Constraint("DistanceX", 0, 2, 0, 1, 0.5))
sketch8.addConstraint(Sketcher.Constraint("DistanceY", 0, 2, 5, 2, 3.0))
sketch8.addConstraint(Sketcher.Constraint("DistanceY", 0, 2, -1, 1, 28.0))
sketch8.addConstraint(Sketcher.Constraint("DistanceY", 12, 2, -1, 1, 6.0))
sketch8.addConstraint(Sketcher.Constraint("DistanceX", -1, 1, 2, 2, 56.5))
pocket5 = body.newObject("PartDesign::Pocket", "Pocket004")
pocket5.Profile = sketch8
pocket5.Length = 0.1
pocket5.Reversed = True

# Sketch on XZ plane
sketch9 = body.newObject("Sketcher::SketchObject", "Sketch008")
sketch9.AttachmentSupport = (doc.getObject("XZ_Plane"), [""])
sketch9.MapMode = "FlatFace"
sketch9.addGeometry(Part.ArcOfCircle(Part.Circle(App.Vector(125, 16, 0), App.Vector(0, 0, 1), 15), math.radians(90), math.radians(143)), False)
sketch9.addGeometry(Part.LineSegment(App.Vector(113, 25, 0), App.Vector(113, -34, 0)), False)
sketch9.addGeometry(Part.LineSegment(App.Vector(113, -34, 0), App.Vector(160, -34, 0)), False)
sketch9.addGeometry(Part.LineSegment(App.Vector(160, -34, 0), App.Vector(160, 31, 0)), False)
sketch9.addGeometry(Part.LineSegment(App.Vector(160, 31, 0), App.Vector(125, 31, 0)), False)
sketch9.addConstraint(Sketcher.Constraint("Coincident", 0, 2, 1, 1))
sketch9.addConstraint(Sketcher.Constraint("Coincident", 1, 2, 2, 1))
sketch9.addConstraint(Sketcher.Constraint("Coincident", 2, 2, 3, 1))
sketch9.addConstraint(Sketcher.Constraint("Coincident", 3, 2, 4, 1))
sketch9.addConstraint(Sketcher.Constraint("Tangent", 4, 2, 0, 1))
sketch9.addConstraint(Sketcher.Constraint("Vertical", 1))
sketch9.addConstraint(Sketcher.Constraint("Horizontal", 2))
sketch9.addConstraint(Sketcher.Constraint("Vertical", 3))
sketch9.addConstraint(Sketcher.Constraint("Horizontal", 4))
sketch9.addConstraint(Sketcher.Constraint("Radius", 0, 15.0))
sketch9.addConstraint(Sketcher.Constraint("DistanceY", 3, 1, 3, 2, 65.0))
sketch9.addConstraint(Sketcher.Constraint("DistanceY", -1, 1, 0, 3, 16.0))
sketch9.addConstraint(Sketcher.Constraint("DistanceX", -1, 1, 2, 2, 160.0))
sketch9.addConstraint(Sketcher.Constraint("DistanceX", 4, 2, 4, 1, 35.048))
sketch9.addConstraint(Sketcher.Constraint("DistanceX", 2, 1, 2, 2, 46.9956))
pad4 = body.newObject("PartDesign::Pad", "Pad003")
pad4.Profile = sketch9
pad4.Length = 5

# Sketch on XZ plane
sketch10 = body.newObject("Sketcher::SketchObject", "Sketch009")
sketch10.AttachmentSupport = (doc.getObject("XZ_Plane"), [""])
sketch10.MapMode = "FlatFace"
sketch10.AttachmentOffset = App.Placement(App.Vector(0, 0, 5), App.Rotation())
sketch10.addGeometry(Part.ArcOfCircle(Part.Circle(App.Vector(158, 29, 0), App.Vector(0, 0, 1), 2), math.radians(0), math.radians(90)), False)
sketch10.addGeometry(Part.LineSegment(App.Vector(160, 29, 0), App.Vector(160, 31, 0)), False)
sketch10.addGeometry(Part.LineSegment(App.Vector(160, 31, 0), App.Vector(158, 31, 0)), False)
sketch10.addGeometry(Part.ArcOfCircle(Part.Circle(App.Vector(158, -32, 0), App.Vector(0, 0, 1), 2), math.radians(-90), math.radians(0)), False)
sketch10.addGeometry(Part.LineSegment(App.Vector(158, -34, 0), App.Vector(160, -34, 0)), False)
sketch10.addGeometry(Part.LineSegment(App.Vector(160, -34, 0), App.Vector(160, -32, 0)), False)
sketch10.addConstraint(Sketcher.Constraint("Tangent", 0, 1, 1, 1))
sketch10.addConstraint(Sketcher.Constraint("Coincident", 1, 2, 2, 1))
sketch10.addConstraint(Sketcher.Constraint("Tangent", 2, 2, 0, 2))
sketch10.addConstraint(Sketcher.Constraint("Tangent", 3, 1, 4, 1))
sketch10.addConstraint(Sketcher.Constraint("Coincident", 4, 2, 5, 1))
sketch10.addConstraint(Sketcher.Constraint("Tangent", 5, 2, 3, 2))
sketch10.addConstraint(Sketcher.Constraint("Vertical", 1))
sketch10.addConstraint(Sketcher.Constraint("Horizontal", 2))
sketch10.addConstraint(Sketcher.Constraint("Horizontal", 4))
sketch10.addConstraint(Sketcher.Constraint("Vertical", 5))
sketch10.addConstraint(Sketcher.Constraint("Equal", 0, 3))
sketch10.addConstraint(Sketcher.Constraint("Vertical", 0, 3, 3, 3))
sketch10.addConstraint(Sketcher.Constraint("Radius", 0, 2.0))
sketch10.addConstraint(Sketcher.Constraint("DistanceX", -1, 1, 0, 3, 158.0))
sketch10.addConstraint(Sketcher.Constraint("DistanceY", -1, 1, 0, 3, 29.0))
sketch10.addConstraint(Sketcher.Constraint("DistanceY", 3, 3, -1, 1, 32.0))
pocket6 = body.newObject("PartDesign::Pocket", "Pocket005")
pocket6.Profile = sketch10
pocket6.Length = 20

# Sketch on XY plane
sketch11 = body.newObject("Sketcher::SketchObject", "Sketch010")
sketch11.AttachmentSupport = (doc.getObject("XY_Plane"), [""])
sketch11.MapMode = "FlatFace"
sketch11.AttachmentOffset = App.Placement(App.Vector(0, 0, -34), App.Rotation())
sketch11.addGeometry(Part.LineSegment(App.Vector(113, 1, 0), App.Vector(113, 0, 0)), False)
sketch11.addGeometry(Part.LineSegment(App.Vector(113, 0, 0), App.Vector(0, 0, 0)), False)
sketch11.addGeometry(Part.LineSegment(App.Vector(0, 0, 0), App.Vector(0, 3.8, 0)), False)
sketch11.addGeometry(Part.LineSegment(App.Vector(0, 3.8, 0), App.Vector(113, 3.8, 0)), False)
sketch11.addGeometry(Part.LineSegment(App.Vector(113, 3.8, 0), App.Vector(113, 6.1, 0)), False)
sketch11.addGeometry(Part.LineSegment(App.Vector(113, 6.1, 0), App.Vector(160, 6.1, 0)), False)
sketch11.addGeometry(Part.LineSegment(App.Vector(160, 6.1, 0), App.Vector(160, 1, 0)), False)
sketch11.addGeometry(Part.LineSegment(App.Vector(160, 1, 0), App.Vector(113, 1, 0)), False)
sketch11.addConstraint(Sketcher.Constraint("Coincident", 0, 2, 1, 1))
sketch11.addConstraint(Sketcher.Constraint("Coincident", 1, 2, 2, 1))
sketch11.addConstraint(Sketcher.Constraint("Coincident", 2, 2, 3, 1))
sketch11.addConstraint(Sketcher.Constraint("Coincident", 3, 2, 4, 1))
sketch11.addConstraint(Sketcher.Constraint("Coincident", 4, 2, 5, 1))
sketch11.addConstraint(Sketcher.Constraint("Coincident", 5, 2, 6, 1))
sketch11.addConstraint(Sketcher.Constraint("Coincident", 6, 2, 7, 1))
sketch11.addConstraint(Sketcher.Constraint("Coincident", 7, 2, 0, 1))
sketch11.addConstraint(Sketcher.Constraint("Vertical", 0))
sketch11.addConstraint(Sketcher.Constraint("Horizontal", 1))
sketch11.addConstraint(Sketcher.Constraint("Vertical", 2))
sketch11.addConstraint(Sketcher.Constraint("Horizontal", 3))
sketch11.addConstraint(Sketcher.Constraint("Vertical", 4))
sketch11.addConstraint(Sketcher.Constraint("Horizontal", 5))
sketch11.addConstraint(Sketcher.Constraint("Vertical", 6))
sketch11.addConstraint(Sketcher.Constraint("Horizontal", 7))
sketch11.addConstraint(Sketcher.Constraint("Coincident", 1, 2, -1, 1))
sketch11.addConstraint(Sketcher.Constraint("Vertical", 0, 2, 3, 2))
sketch11.addConstraint(Sketcher.Constraint("DistanceY", 0, 2, 0, 1, 1.0))
sketch11.addConstraint(Sketcher.Constraint("DistanceX", -1, 1, 5, 2, 160.0))
sketch11.addConstraint(Sketcher.Constraint("DistanceX", 1, 2, 1, 1, 113.0044))
sketch11.addConstraint(Sketcher.Constraint("DistanceY", 2, 1, 2, 2, 3.7863))
sketch11.addConstraint(Sketcher.Constraint("DistanceY", 4, 1, 4, 2, 2.3053))
pocket7 = body.newObject("PartDesign::Pocket", "Pocket006")
pocket7.Profile = sketch11
pocket7.Length = 66
pocket7.Reversed = True

doc.recompute()
